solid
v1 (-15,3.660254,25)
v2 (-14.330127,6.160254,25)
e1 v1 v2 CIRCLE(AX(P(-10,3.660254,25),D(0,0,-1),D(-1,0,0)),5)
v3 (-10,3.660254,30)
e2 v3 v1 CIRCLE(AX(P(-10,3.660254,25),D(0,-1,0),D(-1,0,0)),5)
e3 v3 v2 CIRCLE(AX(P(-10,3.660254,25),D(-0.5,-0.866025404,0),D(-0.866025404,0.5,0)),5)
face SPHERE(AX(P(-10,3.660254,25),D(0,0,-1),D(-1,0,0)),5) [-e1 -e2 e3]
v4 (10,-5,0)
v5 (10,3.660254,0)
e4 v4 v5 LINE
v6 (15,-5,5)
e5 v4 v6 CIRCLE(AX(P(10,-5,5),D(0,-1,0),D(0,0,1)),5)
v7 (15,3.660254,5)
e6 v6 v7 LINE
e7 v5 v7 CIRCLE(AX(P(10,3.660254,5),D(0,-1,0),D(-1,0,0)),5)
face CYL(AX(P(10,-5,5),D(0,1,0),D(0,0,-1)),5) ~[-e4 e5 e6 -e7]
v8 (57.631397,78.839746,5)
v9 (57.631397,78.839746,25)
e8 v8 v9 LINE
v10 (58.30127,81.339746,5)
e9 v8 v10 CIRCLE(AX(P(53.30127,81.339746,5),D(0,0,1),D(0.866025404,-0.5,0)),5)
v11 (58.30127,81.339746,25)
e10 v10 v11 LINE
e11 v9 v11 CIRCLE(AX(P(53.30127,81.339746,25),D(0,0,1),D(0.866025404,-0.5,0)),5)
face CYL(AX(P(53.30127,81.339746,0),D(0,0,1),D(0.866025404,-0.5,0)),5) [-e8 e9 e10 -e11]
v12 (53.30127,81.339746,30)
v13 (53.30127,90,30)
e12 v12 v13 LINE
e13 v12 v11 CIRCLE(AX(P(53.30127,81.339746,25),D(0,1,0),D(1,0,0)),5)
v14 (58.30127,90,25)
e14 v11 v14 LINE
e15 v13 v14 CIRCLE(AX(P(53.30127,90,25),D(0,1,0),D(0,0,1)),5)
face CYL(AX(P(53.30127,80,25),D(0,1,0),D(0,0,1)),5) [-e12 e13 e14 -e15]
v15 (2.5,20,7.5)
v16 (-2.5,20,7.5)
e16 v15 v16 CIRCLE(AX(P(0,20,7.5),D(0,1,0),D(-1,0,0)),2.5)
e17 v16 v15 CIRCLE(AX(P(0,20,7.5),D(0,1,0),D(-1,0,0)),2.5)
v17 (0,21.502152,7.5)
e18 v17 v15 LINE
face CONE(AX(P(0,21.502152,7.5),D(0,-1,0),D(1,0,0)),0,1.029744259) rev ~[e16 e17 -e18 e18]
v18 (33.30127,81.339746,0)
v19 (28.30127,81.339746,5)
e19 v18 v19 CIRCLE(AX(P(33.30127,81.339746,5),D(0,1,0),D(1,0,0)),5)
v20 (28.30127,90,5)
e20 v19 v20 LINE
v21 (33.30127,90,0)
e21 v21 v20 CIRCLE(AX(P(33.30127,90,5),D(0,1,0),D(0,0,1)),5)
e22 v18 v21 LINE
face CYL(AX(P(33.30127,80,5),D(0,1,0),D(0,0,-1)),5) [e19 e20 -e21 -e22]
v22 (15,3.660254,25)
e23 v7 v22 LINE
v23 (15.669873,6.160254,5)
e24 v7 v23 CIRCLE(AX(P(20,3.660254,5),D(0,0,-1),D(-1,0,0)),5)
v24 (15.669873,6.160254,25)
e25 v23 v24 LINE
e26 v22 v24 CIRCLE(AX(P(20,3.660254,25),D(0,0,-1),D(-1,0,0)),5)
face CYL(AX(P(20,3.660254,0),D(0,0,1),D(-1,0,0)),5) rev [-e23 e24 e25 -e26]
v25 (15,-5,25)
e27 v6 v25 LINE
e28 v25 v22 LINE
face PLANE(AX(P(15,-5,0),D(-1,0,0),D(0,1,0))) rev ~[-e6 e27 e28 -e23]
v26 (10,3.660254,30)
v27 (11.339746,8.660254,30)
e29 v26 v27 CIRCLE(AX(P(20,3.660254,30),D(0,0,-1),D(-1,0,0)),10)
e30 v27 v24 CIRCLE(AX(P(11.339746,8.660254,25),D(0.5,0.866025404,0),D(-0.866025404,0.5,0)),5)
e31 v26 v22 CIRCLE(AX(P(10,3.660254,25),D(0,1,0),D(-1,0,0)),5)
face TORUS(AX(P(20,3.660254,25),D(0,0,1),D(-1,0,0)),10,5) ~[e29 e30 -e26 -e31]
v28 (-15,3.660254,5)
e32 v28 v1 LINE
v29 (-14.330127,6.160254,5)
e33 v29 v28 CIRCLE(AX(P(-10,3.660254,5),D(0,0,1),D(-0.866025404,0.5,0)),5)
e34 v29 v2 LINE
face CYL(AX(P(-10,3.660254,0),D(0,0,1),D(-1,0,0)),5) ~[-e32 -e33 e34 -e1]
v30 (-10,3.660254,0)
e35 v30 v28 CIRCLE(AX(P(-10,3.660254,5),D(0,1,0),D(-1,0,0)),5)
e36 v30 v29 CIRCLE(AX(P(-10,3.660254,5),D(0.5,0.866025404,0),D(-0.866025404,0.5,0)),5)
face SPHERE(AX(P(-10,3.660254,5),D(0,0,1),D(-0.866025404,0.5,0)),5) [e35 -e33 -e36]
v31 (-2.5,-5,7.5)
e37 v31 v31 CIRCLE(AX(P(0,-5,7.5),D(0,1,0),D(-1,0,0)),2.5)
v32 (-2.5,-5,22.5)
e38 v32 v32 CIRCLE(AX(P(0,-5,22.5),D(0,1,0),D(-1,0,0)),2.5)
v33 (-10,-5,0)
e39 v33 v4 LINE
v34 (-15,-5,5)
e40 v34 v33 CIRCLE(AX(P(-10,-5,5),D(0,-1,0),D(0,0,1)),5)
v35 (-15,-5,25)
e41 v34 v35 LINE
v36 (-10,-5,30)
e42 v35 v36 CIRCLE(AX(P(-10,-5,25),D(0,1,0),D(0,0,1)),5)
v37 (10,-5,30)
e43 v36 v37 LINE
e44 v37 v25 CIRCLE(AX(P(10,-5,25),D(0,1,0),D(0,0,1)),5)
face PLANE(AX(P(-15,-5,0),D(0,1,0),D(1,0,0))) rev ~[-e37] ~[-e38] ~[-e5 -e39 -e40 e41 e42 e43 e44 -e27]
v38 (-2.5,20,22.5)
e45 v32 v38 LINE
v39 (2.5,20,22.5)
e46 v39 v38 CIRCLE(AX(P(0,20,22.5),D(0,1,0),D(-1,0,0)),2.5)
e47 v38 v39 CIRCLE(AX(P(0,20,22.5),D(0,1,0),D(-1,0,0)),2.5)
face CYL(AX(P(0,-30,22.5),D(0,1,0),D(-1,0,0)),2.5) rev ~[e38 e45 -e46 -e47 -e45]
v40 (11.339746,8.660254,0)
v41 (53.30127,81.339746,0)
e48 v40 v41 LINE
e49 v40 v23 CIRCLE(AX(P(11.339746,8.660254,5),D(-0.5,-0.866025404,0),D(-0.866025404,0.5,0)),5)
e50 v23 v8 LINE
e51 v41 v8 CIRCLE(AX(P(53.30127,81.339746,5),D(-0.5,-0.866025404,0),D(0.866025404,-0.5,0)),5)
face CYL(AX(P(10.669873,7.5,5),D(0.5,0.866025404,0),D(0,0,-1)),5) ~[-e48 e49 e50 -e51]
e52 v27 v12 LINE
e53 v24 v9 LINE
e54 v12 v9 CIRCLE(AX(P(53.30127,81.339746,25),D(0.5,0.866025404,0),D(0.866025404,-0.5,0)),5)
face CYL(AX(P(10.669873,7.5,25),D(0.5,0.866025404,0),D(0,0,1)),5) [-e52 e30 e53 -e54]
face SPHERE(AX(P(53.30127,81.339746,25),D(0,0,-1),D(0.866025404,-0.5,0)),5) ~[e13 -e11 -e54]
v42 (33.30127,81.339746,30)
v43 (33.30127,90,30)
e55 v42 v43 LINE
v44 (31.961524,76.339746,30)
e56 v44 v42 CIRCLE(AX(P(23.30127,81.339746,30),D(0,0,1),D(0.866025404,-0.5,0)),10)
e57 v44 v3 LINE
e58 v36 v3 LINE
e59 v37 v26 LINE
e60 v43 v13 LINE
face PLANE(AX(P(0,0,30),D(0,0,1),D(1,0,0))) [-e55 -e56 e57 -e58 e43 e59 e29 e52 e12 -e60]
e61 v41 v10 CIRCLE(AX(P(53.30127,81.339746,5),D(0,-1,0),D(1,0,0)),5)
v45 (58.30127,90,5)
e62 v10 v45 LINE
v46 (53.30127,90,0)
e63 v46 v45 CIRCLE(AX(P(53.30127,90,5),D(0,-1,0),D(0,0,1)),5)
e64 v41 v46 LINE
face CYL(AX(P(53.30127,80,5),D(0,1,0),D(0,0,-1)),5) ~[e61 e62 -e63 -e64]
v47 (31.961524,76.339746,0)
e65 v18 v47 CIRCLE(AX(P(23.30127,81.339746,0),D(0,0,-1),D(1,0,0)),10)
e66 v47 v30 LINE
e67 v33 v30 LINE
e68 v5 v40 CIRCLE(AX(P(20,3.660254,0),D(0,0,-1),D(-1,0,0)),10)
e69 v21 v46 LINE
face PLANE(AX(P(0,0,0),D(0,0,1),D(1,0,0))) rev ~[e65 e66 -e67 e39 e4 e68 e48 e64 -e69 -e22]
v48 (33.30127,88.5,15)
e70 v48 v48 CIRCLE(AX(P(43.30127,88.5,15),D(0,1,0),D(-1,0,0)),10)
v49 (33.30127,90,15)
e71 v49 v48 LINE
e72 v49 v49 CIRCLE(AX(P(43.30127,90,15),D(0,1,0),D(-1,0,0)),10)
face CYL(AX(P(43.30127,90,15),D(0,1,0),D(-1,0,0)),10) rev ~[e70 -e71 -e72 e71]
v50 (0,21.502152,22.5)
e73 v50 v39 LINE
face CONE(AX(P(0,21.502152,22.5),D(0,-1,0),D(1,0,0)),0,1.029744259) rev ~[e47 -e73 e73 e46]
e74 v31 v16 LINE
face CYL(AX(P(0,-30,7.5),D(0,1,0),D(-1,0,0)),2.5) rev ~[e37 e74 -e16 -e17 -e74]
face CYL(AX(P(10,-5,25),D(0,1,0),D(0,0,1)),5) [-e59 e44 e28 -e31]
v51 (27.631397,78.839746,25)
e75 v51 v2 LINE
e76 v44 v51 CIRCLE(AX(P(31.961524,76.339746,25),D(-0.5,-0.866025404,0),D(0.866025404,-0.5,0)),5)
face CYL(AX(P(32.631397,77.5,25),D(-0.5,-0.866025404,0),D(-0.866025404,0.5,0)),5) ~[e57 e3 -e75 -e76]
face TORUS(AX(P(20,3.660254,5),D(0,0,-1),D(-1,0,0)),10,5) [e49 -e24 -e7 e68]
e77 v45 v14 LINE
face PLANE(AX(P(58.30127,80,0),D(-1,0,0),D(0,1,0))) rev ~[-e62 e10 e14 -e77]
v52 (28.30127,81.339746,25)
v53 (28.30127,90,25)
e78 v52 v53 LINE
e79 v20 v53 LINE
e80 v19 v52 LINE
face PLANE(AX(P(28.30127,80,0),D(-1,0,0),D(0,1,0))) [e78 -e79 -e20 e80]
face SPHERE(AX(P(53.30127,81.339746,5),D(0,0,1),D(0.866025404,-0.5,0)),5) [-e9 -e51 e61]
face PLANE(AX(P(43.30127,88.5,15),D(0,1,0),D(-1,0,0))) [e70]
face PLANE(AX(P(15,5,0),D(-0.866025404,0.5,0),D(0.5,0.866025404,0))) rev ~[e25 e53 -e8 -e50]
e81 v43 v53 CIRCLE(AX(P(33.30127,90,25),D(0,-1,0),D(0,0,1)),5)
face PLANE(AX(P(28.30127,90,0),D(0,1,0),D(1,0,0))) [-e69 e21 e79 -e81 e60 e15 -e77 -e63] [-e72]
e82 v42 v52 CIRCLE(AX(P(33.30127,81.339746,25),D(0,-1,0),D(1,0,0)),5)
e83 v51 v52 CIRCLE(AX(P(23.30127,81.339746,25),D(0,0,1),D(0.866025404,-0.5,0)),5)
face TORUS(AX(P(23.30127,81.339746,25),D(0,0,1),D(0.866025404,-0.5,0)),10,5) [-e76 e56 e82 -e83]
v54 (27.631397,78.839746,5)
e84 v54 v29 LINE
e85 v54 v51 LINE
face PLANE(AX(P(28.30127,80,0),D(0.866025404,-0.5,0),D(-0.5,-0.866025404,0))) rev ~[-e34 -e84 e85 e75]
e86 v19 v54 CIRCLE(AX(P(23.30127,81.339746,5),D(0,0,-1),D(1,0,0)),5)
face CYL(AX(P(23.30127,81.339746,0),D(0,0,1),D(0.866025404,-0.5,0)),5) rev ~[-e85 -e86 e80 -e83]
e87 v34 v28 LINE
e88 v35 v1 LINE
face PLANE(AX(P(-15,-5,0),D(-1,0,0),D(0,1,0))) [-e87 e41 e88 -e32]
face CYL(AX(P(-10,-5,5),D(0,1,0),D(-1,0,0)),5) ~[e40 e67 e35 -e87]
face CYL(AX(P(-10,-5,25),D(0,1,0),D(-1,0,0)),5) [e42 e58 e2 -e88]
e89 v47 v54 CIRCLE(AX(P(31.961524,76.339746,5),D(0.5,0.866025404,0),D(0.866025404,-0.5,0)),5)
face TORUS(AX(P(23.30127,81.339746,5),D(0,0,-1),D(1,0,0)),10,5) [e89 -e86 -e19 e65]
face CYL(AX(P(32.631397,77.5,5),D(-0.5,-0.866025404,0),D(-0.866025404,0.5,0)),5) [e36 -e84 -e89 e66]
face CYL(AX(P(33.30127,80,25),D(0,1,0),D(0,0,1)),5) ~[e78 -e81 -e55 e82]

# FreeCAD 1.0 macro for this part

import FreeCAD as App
import Part
import Sketcher

V = App.Vector
Q = App.Units.Quantity


def edges_at(feature, points):
    """Names of the edges that pass closest to the given points."""
    edges = feature.Shape.Edges
    near = lambda p: min(range(len(edges)), key=lambda i: edges[i].distToShape(Part.Vertex(*p))[0])
    return sorted({f"Edge{near(p) + 1}" for p in points})

doc = App.newDocument("Part")
body = doc.addObject("PartDesign::Body", "Body")

sketch1 = doc.addObject("Sketcher::SketchObject", "Sketch")
body.addObject(sketch1)
sketch1.AttachmentSupport = (doc.XY_Plane, [""])
sketch1.MapMode = "FlatFace"
sketch1.addGeometry(Part.LineSegment(V(-15, 5, 0), V(-15, -5, 0)), False)
sketch1.addGeometry(Part.LineSegment(V(-15, -5, 0), V(15, -5, 0)), False)
sketch1.addGeometry(Part.LineSegment(V(15, -5, 0), V(15, 5, 0)), False)
sketch1.addGeometry(Part.LineSegment(V(15, 5, 0), V(58.30127, 80, 0)), False)
sketch1.addGeometry(Part.LineSegment(V(58.30127, 80, 0), V(58.30127, 90, 0)), False)
sketch1.addGeometry(Part.LineSegment(V(58.30127, 90, 0), V(28.30127, 90, 0)), False)
sketch1.addGeometry(Part.LineSegment(V(28.30127, 90, 0), V(28.30127, 80, 0)), False)
sketch1.addGeometry(Part.LineSegment(V(28.30127, 80, 0), V(-15, 5, 0)), False)
sketch1.addConstraint(Sketcher.Constraint("Coincident", 0, 2, 1, 1))
sketch1.addConstraint(Sketcher.Constraint("Coincident", 1, 2, 2, 1))
sketch1.addConstraint(Sketcher.Constraint("Coincident", 2, 2, 3, 1))
sketch1.addConstraint(Sketcher.Constraint("Coincident", 3, 2, 4, 1))
sketch1.addConstraint(Sketcher.Constraint("Coincident", 4, 2, 5, 1))
sketch1.addConstraint(Sketcher.Constraint("Coincident", 5, 2, 6, 1))
sketch1.addConstraint(Sketcher.Constraint("Coincident", 6, 2, 7, 1))
sketch1.addConstraint(Sketcher.Constraint("Coincident", 7, 2, 0, 1))
sketch1.addConstraint(Sketcher.Constraint("Vertical", 0))
sketch1.addConstraint(Sketcher.Constraint("Horizontal", 1))
sketch1.addConstraint(Sketcher.Constraint("Vertical", 2))
sketch1.addConstraint(Sketcher.Constraint("Vertical", 4))
sketch1.addConstraint(Sketcher.Constraint("Horizontal", 5))
sketch1.addConstraint(Sketcher.Constraint("Vertical", 6))
sketch1.addConstraint(Sketcher.Constraint("Symmetric", 0, 2, 2, 2, -1, 1))
sketch1.addConstraint(Sketcher.Constraint("Parallel", 3, 7))
sketch1.addConstraint(Sketcher.Constraint("Horizontal", 3, 2, 6, 2))
sketch1.addConstraint(Sketcher.Constraint("Horizontal", 2, 2, 7, 2))
sketch1.addConstraint(Sketcher.Constraint("Equal", 2, 4))
sketch1.addConstraint(Sketcher.Constraint("DistanceX", 1, 1, 1, 2, Q("30 mm")))
sketch1.addConstraint(Sketcher.Constraint("DistanceY", 0, 2, 0, 1, Q("10 mm")))
sketch1.addConstraint(Sketcher.Constraint("Angle", 3, Q("60 deg")))
sketch1.addConstraint(Sketcher.Constraint("DistanceY", -1, 1, 3, 2, Q("80 mm")))
pad1 = doc.addObject("PartDesign::Pad", "Pad")
body.addObject(pad1)
pad1.Profile = sketch1
pad1.Length = 30

sketch2 = doc.addObject("Sketcher::SketchObject", "Sketch001")
body.addObject(sketch2)
sketch2.AttachmentSupport = (doc.XZ_Plane, [""])
sketch2.MapMode = "FlatFace"
sketch2.AttachmentOffset = App.Placement(V(0, 0, 5), App.Rotation())
sketch2.addGeometry(Part.Circle(V(0, 22.5, 0), V(0, 0, 1), 2.5), False)
sketch2.addGeometry(Part.Circle(V(0, 7.5, 0), V(0, 0, 1), 2.5), False)
sketch2.addConstraint(Sketcher.Constraint("Equal", 0, 1))
sketch2.addConstraint(Sketcher.Constraint("PointOnObject", 0, 3, -2))
sketch2.addConstraint(Sketcher.Constraint("PointOnObject", 1, 3, -2))
sketch2.addConstraint(Sketcher.Constraint("Diameter", 0, Q("5 mm")))
sketch2.addConstraint(Sketcher.Constraint("DistanceY", 1, 3, 0, 3, Q("15 mm")))
sketch2.addConstraint(Sketcher.Constraint("DistanceY", -1, 1, 0, 3, Q("22.5 mm")))
doc.recompute()
hole = doc.addObject("PartDesign::Hole", "Hole")
body.addObject(hole)
hole.Profile = sketch2
hole.ThreadType = "None"
hole.Diameter = 5
hole.DepthType = "Dimension"
hole.Depth = 25
hole.DrillPoint = "Angled"
hole.DrillPointAngle = 118
doc.recompute()

fillet = doc.addObject("PartDesign::Fillet", "Fillet")
body.addObject(fillet)
fillet.Base = (hole, edges_at(hole, [
    (15, 0, 0),
    (36.651, 42.5, 0),
    (15, 0, 30),
    (36.651, 42.5, 30),
    (-15, 0, 30),
    (6.651, 42.5, 30),
    (28.301, 85, 30),
    (58.301, 85, 30),
    (58.301, 85, 0),
    (28.301, 85, 0),
    (6.651, 42.5, 0),
    (-15, 0, 0),
    (58.301, 80, 15),
    (15, 5, 15),
    (-15, 5, 15),
    (28.301, 80, 15),
]))
fillet.Radius = 5

sketch3 = doc.addObject("Sketcher::SketchObject", "Sketch002")
body.addObject(sketch3)
sketch3.AttachmentSupport = (doc.XZ_Plane, [""])
sketch3.MapMode = "FlatFace"
sketch3.AttachmentOffset = App.Placement(V(0, 0, -90), App.Rotation())
sketch3.addGeometry(Part.Circle(V(43.30127, 15, 0), V(0, 0, 1), 10), False)
sketch3.addConstraint(Sketcher.Constraint("Diameter", 0, Q("20 mm")))
sketch3.addConstraint(Sketcher.Constraint("DistanceY", -1, 1, 0, 3, Q("15 mm")))
sketch3.addConstraint(Sketcher.Constraint("DistanceX", -1, 1, 0, 3, Q("43.30127 mm")))
pocket1 = doc.addObject("PartDesign::Pocket", "Pocket")
body.addObject(pocket1)
pocket1.Profile = sketch3
pocket1.Length = 1.5
pocket1.Reversed = True

doc.recompute()
